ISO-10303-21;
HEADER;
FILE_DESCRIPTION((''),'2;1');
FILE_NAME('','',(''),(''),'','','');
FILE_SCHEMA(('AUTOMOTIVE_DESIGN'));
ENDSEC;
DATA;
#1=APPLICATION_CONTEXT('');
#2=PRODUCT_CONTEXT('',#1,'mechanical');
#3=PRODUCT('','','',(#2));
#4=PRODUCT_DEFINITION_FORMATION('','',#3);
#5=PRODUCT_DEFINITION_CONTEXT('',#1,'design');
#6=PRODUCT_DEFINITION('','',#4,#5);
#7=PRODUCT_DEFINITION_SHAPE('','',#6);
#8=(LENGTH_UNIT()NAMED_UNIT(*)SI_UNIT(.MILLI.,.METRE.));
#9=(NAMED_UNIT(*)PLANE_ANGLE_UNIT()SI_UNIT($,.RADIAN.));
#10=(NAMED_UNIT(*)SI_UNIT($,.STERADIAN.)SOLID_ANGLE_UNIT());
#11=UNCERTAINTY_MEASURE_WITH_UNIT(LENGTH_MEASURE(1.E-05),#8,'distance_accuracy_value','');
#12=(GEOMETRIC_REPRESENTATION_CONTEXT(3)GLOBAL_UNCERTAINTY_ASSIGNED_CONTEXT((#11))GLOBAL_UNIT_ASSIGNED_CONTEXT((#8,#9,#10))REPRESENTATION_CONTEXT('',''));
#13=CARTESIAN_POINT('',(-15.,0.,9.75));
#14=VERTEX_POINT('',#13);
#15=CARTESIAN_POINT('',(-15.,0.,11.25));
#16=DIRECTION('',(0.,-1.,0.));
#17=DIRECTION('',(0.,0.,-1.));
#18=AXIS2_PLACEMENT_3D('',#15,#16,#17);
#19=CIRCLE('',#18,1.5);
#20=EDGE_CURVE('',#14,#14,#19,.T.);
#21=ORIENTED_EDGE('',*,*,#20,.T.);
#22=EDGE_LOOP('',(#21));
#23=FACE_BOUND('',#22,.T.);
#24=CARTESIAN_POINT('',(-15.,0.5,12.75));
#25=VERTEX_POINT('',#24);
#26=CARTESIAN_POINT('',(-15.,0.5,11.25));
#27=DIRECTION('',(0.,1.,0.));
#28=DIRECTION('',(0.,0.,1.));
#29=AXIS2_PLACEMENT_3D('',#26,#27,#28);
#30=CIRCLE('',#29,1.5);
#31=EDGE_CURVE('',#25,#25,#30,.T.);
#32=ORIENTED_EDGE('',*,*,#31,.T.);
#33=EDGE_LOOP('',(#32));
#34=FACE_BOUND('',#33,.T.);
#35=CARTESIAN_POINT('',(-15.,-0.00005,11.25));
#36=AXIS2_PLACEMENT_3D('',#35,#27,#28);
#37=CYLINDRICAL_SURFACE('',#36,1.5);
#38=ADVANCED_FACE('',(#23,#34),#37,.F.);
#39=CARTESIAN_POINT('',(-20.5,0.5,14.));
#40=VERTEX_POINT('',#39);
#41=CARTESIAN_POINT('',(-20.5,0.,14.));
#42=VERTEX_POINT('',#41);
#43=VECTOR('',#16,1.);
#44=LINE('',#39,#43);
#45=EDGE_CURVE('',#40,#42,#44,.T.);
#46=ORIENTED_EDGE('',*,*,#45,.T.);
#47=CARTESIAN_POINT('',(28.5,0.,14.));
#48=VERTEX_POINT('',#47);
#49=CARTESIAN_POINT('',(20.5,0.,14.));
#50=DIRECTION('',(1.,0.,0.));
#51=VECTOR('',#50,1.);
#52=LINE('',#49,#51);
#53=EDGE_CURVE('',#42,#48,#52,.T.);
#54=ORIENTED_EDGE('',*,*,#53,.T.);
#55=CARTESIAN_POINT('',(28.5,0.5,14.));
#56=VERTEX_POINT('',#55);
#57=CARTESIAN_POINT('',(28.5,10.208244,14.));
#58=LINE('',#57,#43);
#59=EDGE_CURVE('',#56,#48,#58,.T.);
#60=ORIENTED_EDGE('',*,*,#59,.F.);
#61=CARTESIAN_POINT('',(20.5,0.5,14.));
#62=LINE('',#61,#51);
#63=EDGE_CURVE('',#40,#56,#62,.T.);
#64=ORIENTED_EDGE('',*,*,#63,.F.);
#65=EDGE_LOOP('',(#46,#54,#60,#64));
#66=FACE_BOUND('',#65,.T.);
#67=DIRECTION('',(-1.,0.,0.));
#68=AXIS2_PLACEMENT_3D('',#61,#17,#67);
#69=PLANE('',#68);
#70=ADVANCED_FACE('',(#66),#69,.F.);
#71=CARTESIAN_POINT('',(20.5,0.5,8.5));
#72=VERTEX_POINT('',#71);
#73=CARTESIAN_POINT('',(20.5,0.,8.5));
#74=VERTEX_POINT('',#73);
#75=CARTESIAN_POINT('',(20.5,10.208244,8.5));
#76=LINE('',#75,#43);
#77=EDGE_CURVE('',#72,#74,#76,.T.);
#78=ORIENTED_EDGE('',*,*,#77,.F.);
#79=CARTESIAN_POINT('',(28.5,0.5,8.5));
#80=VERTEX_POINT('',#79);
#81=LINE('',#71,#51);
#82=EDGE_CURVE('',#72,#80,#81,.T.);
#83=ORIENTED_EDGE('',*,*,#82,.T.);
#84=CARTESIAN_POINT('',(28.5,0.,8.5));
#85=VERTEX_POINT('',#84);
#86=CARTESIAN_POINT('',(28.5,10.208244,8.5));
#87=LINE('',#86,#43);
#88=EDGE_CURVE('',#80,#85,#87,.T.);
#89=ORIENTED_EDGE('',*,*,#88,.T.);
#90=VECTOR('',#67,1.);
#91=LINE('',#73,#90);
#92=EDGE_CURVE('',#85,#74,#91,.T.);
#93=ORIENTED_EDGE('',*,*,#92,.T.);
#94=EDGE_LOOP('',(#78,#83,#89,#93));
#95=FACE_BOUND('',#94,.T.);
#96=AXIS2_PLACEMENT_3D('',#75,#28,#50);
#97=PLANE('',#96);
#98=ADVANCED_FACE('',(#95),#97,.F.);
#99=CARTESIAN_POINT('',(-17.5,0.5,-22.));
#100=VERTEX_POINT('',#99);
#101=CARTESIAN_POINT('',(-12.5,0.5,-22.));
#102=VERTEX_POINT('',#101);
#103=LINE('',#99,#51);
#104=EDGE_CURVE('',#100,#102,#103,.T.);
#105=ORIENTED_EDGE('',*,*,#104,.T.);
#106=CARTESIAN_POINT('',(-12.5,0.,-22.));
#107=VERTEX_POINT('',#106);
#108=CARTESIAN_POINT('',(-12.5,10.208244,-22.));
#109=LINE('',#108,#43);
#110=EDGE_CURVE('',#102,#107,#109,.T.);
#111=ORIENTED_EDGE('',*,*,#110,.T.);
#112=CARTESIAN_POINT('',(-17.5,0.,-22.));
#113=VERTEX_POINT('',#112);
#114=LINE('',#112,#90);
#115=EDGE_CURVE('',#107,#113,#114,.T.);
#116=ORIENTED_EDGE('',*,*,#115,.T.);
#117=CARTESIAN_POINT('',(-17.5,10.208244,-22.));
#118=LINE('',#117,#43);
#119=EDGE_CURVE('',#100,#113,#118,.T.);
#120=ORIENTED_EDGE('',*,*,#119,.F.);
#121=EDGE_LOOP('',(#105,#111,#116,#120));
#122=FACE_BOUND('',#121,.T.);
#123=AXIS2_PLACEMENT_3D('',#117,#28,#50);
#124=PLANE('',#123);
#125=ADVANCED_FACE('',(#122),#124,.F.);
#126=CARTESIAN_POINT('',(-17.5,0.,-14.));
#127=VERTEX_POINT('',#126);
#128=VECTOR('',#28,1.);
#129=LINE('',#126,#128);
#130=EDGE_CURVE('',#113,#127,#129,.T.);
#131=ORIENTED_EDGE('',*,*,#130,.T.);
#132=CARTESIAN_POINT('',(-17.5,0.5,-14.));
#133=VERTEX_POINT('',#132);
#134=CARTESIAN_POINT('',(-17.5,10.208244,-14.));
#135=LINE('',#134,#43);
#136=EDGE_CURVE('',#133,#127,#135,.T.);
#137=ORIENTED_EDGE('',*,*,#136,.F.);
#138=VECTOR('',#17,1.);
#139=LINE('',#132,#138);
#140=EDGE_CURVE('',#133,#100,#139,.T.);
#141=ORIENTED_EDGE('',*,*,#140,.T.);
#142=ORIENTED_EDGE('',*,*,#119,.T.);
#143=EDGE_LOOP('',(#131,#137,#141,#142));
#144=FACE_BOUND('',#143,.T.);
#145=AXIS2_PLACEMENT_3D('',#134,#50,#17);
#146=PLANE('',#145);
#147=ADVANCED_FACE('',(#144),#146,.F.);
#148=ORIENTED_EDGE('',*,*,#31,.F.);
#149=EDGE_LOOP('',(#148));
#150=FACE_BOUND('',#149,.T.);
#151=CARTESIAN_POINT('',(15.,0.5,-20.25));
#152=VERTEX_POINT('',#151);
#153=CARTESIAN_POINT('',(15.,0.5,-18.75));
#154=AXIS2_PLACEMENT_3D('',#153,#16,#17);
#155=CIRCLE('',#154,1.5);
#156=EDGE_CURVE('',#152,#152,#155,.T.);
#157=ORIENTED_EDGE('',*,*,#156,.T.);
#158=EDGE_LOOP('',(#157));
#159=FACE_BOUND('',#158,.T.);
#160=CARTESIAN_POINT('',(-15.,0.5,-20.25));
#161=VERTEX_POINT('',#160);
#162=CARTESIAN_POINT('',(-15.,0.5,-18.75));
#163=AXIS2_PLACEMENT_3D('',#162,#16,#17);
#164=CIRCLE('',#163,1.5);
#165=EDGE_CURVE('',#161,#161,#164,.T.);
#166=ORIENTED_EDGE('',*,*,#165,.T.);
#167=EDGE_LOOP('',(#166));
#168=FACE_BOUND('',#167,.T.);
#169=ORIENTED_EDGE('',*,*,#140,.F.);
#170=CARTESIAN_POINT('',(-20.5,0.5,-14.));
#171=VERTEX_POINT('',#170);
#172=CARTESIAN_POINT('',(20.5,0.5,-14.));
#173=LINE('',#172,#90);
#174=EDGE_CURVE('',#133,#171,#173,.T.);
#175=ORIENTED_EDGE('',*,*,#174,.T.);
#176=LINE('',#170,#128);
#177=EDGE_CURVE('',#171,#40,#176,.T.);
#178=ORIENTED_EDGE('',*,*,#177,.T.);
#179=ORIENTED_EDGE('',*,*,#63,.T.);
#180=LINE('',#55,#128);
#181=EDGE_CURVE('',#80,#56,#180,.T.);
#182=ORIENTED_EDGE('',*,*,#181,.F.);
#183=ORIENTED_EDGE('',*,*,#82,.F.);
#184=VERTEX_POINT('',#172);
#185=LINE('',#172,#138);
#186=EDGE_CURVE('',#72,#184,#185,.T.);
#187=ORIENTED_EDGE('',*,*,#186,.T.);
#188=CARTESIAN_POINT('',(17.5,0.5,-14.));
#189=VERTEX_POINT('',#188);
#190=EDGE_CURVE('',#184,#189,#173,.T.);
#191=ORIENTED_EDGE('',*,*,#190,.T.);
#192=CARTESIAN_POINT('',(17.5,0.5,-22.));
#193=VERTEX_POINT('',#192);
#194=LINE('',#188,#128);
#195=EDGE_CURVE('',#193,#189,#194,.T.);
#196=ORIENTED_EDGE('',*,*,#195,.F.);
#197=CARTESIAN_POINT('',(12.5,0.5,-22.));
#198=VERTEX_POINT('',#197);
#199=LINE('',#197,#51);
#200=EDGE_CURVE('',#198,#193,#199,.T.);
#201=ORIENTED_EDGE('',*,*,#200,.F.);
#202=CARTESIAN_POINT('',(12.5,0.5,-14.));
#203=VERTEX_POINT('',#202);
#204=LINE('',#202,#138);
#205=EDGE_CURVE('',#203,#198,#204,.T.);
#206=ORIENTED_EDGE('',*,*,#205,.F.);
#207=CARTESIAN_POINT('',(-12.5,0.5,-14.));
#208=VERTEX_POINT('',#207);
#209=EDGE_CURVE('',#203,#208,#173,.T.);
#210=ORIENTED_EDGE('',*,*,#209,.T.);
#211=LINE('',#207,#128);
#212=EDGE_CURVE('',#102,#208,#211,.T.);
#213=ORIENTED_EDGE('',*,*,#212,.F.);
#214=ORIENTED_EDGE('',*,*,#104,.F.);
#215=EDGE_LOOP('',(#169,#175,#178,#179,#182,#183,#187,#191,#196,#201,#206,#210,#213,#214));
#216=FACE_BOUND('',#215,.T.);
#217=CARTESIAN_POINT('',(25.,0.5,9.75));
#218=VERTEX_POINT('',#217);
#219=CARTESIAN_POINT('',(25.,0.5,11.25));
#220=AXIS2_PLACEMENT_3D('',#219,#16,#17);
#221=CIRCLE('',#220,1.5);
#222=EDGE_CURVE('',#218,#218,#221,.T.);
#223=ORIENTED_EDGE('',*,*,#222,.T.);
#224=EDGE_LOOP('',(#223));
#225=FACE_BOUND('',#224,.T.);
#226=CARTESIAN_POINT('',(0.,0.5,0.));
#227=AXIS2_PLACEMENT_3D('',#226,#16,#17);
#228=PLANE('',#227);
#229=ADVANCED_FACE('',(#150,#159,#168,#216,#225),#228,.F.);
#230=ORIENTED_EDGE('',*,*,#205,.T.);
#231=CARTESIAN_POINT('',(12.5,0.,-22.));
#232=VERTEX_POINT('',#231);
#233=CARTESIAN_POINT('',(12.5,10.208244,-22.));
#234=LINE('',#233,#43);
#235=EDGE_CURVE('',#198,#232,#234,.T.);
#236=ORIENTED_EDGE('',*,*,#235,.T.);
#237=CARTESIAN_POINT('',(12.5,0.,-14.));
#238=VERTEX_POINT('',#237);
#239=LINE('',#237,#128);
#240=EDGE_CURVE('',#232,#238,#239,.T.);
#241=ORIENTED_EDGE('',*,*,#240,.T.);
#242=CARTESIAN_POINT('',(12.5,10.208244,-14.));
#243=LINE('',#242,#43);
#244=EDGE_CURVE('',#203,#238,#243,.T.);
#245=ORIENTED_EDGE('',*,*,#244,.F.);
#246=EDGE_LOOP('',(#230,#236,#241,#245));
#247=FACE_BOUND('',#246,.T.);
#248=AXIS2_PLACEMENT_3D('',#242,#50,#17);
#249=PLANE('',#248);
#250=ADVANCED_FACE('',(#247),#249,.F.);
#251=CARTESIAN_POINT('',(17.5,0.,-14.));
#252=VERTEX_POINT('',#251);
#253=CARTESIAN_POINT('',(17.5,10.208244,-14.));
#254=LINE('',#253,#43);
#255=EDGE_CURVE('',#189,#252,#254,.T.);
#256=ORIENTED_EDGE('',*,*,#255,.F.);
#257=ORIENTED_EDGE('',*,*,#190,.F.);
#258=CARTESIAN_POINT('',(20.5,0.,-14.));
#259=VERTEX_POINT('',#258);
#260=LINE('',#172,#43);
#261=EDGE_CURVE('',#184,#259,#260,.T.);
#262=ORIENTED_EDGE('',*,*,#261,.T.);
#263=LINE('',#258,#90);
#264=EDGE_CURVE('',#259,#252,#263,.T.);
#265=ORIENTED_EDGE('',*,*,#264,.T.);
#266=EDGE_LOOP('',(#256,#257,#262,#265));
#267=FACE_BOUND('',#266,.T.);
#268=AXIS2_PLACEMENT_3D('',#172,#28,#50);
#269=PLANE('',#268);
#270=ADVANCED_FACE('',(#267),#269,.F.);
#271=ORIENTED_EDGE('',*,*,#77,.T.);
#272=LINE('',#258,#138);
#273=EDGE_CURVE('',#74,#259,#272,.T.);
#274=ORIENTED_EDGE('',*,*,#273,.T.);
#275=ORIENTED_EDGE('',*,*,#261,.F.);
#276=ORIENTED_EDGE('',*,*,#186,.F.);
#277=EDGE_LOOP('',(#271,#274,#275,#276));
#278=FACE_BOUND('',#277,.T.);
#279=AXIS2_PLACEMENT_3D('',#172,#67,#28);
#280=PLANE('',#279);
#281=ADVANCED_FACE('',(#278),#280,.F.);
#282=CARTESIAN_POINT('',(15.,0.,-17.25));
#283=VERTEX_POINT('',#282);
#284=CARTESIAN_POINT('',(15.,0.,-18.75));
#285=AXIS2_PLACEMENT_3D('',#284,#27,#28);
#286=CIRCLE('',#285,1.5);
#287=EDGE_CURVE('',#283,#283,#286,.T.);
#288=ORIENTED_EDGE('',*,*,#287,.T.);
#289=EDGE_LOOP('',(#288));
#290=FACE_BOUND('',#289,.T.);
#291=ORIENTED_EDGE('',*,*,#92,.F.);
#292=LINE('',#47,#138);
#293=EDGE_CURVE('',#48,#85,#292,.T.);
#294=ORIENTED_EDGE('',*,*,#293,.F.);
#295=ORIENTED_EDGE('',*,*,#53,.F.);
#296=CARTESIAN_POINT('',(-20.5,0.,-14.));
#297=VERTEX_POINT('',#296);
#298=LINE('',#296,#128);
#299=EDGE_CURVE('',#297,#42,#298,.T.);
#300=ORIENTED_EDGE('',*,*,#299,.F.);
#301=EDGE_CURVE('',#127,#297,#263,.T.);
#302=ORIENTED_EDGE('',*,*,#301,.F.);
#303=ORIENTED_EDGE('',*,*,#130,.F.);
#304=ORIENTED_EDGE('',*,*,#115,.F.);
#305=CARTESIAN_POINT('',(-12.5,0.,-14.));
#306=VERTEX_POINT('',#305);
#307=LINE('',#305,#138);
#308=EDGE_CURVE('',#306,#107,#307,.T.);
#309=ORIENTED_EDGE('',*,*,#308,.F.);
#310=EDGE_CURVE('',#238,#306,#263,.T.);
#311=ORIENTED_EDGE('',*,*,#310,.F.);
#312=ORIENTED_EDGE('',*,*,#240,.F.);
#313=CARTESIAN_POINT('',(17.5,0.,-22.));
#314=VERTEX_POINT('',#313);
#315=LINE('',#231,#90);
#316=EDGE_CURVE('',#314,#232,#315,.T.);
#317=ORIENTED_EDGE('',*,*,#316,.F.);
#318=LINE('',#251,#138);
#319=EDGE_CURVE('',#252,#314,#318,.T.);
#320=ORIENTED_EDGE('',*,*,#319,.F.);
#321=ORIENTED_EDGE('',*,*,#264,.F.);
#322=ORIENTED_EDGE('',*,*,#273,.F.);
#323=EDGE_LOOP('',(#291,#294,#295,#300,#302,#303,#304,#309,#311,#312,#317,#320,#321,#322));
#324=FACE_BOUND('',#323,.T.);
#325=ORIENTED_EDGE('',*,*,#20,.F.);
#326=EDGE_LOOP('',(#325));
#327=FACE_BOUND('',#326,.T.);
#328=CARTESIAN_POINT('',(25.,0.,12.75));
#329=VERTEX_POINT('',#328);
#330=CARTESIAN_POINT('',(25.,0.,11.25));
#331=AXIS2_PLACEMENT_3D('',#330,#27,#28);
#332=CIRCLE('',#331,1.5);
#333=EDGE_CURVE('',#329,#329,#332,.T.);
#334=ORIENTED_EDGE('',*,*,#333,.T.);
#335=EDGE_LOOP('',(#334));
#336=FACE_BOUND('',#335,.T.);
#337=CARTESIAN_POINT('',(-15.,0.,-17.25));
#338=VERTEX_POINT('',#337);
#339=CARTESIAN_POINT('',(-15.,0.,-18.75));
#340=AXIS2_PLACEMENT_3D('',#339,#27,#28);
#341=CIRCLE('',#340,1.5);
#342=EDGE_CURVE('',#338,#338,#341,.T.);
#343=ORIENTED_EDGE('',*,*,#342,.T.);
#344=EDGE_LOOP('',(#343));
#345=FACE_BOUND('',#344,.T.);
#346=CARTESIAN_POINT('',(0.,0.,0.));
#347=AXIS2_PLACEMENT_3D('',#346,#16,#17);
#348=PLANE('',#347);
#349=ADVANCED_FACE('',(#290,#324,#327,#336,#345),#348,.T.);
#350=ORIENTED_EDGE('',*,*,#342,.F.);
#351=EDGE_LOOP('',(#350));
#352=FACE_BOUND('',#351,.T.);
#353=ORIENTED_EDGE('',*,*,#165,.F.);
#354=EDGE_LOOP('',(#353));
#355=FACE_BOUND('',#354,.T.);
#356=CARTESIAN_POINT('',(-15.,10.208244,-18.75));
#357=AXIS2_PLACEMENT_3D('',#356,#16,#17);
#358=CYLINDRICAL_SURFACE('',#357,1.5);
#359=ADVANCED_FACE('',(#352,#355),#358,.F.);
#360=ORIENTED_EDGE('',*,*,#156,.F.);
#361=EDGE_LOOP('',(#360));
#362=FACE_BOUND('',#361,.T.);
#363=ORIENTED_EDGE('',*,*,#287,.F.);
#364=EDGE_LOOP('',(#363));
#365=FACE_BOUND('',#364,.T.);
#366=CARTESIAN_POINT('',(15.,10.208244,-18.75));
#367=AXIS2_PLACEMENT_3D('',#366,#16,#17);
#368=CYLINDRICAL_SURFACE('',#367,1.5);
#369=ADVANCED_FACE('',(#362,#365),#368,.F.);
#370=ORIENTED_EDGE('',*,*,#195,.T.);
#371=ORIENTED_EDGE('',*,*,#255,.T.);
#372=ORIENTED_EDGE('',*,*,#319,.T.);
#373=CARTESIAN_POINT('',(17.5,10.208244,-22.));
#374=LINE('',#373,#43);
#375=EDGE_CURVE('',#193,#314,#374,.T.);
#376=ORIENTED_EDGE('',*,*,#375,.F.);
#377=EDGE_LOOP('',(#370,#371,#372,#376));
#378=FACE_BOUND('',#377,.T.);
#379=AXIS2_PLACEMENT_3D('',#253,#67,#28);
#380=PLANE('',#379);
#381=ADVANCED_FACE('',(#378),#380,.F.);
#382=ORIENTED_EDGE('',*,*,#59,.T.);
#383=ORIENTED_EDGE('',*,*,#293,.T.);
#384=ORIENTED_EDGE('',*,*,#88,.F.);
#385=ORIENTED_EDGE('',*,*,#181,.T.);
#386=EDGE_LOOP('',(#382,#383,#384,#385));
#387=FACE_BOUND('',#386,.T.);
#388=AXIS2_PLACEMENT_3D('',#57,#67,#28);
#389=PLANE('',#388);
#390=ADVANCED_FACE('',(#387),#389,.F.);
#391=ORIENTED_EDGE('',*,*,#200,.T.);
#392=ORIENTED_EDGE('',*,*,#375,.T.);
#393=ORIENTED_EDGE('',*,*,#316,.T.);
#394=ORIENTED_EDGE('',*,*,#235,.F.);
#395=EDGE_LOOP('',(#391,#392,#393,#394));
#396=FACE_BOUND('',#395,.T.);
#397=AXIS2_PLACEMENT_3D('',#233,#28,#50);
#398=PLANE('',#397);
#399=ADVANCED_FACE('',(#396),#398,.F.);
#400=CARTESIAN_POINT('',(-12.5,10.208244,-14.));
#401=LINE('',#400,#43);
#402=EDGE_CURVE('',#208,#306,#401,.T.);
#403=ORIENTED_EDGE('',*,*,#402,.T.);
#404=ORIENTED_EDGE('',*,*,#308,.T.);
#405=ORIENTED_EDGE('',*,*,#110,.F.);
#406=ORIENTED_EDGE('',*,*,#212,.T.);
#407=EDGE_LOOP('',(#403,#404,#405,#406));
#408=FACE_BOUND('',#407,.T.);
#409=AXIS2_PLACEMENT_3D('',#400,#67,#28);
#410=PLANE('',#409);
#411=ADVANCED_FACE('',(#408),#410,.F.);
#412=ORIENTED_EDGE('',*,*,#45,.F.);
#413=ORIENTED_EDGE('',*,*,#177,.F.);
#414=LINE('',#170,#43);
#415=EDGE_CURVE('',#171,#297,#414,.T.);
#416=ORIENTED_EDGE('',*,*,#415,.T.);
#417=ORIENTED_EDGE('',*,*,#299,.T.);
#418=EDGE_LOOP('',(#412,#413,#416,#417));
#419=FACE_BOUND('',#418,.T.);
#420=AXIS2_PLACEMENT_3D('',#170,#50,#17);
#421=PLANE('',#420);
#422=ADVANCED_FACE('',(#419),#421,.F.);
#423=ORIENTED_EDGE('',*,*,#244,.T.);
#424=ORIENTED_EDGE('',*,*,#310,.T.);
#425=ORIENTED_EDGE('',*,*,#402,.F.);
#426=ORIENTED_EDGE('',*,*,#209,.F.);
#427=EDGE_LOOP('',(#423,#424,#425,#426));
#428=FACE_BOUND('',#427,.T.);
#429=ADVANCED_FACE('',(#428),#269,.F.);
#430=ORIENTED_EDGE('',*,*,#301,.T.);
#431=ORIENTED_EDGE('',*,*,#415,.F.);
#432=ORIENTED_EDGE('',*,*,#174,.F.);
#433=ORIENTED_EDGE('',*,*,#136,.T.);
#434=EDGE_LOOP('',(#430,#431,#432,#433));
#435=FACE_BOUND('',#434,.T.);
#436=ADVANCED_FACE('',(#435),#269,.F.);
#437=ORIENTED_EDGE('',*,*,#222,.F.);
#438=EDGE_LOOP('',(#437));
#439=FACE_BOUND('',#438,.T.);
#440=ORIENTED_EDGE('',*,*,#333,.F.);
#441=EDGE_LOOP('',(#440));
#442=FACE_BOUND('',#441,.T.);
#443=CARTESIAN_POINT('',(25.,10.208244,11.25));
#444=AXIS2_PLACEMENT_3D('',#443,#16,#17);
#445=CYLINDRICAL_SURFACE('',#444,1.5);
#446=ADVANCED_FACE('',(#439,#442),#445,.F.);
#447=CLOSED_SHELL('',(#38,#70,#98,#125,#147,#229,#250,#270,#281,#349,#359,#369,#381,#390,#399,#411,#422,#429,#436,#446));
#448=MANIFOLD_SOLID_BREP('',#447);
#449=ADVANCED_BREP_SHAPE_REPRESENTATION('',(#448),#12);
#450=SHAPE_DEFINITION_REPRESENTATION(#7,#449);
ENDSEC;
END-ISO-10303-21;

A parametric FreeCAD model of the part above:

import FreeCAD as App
import Part
import Sketcher


def add_polygon(sketch, points):
    """Adds a closed chain of lines whose ends are joined by coincident constraints."""
    first, n = sketch.GeometryCount, len(points)
    for a, b in zip(points, points[1:] + points[:1]):
        sketch.addGeometry(Part.LineSegment(App.Vector(*a, 0), App.Vector(*b, 0)), False)
    for i in range(n):
        sketch.addConstraint(Sketcher.Constraint("Coincident", first + i, 2, first + (i + 1) % n, 1))

doc = App.newDocument("Part")
body = doc.addObject("PartDesign::Body", "Body")

# Sketch on XZ plane
sketch1 = doc.addObject("Sketcher::SketchObject", "Sketch")
body.addObject(sketch1)
sketch1.AttachmentSupport = (doc.XZ_Plane, [""])
sketch1.MapMode = "FlatFace"
add_polygon(sketch1, [(-20, -14), (-20, 14), (20, 14), (20, -14)])  # lines 0-3
sketch1.addConstraint(Sketcher.Constraint("Vertical", 0))
sketch1.addConstraint(Sketcher.Constraint("Horizontal", 1))
sketch1.addConstraint(Sketcher.Constraint("Vertical", 2))
sketch1.addConstraint(Sketcher.Constraint("Horizontal", 3))
sketch1.addConstraint(Sketcher.Constraint("Symmetric", 0, 2, 2, 2, -1, 1))
sketch1.addConstraint(Sketcher.Constraint("DistanceX", 1, 1, 1, 2, 41.0))
sketch1.addConstraint(Sketcher.Constraint("DistanceY", 0, 1, 0, 2, 28.0))
pad1 = doc.addObject("PartDesign::Pad", "Pad")
body.addObject(pad1)
pad1.Profile = sketch1
pad1.Length = 0.5
pad1.Reversed = True

# Sketch on XZ plane
sketch2 = doc.addObject("Sketcher::SketchObject", "Sketch001")
body.addObject(sketch2)
sketch2.AttachmentSupport = (doc.XZ_Plane, [""])
sketch2.MapMode = "FlatFace"
sketch2.addGeometry(Part.Circle(App.Vector(-15, 11.2, 0), App.Vector(0, 0, 1), 1.5), False)  # 0
add_polygon(sketch2, [(-17.5, -22), (-17.5, -14), (-12.5, -14), (-12.5, -22)])  # lines 1-4
sketch2.addGeometry(Part.Circle(App.Vector(-15, -18.8, 0), App.Vector(0, 0, 1), 1.5), False)  # 5
add_polygon(sketch2, [(12.5, -22), (12.5, -14), (17.5, -14), (17.5, -22)])  # lines 6-9
sketch2.addGeometry(Part.Circle(App.Vector(15, -18.8, 0), App.Vector(0, 0, 1), 1.5), False)  # 10
add_polygon(sketch2, [(20.5, 8.5), (20.5, 14), (28.5, 14), (28.5, 8.5)])  # lines 11-14
sketch2.addGeometry(Part.Circle(App.Vector(25, 11.2, 0), App.Vector(0, 0, 1), 1.5), False)  # 15
sketch2.addConstraint(Sketcher.Constraint("Vertical", 1))
sketch2.addConstraint(Sketcher.Constraint("Horizontal", 2))
sketch2.addConstraint(Sketcher.Constraint("Vertical", 3))
sketch2.addConstraint(Sketcher.Constraint("Horizontal", 4))
sketch2.addConstraint(Sketcher.Constraint("Vertical", 6))
sketch2.addConstraint(Sketcher.Constraint("Horizontal", 7))
sketch2.addConstraint(Sketcher.Constraint("Vertical", 8))
sketch2.addConstraint(Sketcher.Constraint("Horizontal", 9))
sketch2.addConstraint(Sketcher.Constraint("Vertical", 11))
sketch2.addConstraint(Sketcher.Constraint("Horizontal", 12))
sketch2.addConstraint(Sketcher.Constraint("Vertical", 13))
sketch2.addConstraint(Sketcher.Constraint("Horizontal", 14))
sketch2.addConstraint(Sketcher.Constraint("Equal", 0, 5))
sketch2.addConstraint(Sketcher.Constraint("Equal", 5, 10))
sketch2.addConstraint(Sketcher.Constraint("Equal", 10, 15))
sketch2.addConstraint(Sketcher.Constraint("Symmetric", 5, 3, 10, 3, -2))
sketch2.addConstraint(Sketcher.Constraint("Symmetric", 2, 2, 6, 2, -2))
sketch2.addConstraint(Sketcher.Constraint("Symmetric", 4, 2, 8, 2, -2))
sketch2.addConstraint(Sketcher.Constraint("Horizontal", 0, 3, 15, 3))
sketch2.addConstraint(Sketcher.Constraint("Vertical", 0, 3, 5, 3))
sketch2.addConstraint(Sketcher.Constraint("Equal", 14, 1))
sketch2.addConstraint(Sketcher.Constraint("Diameter", 0, 3.0))
sketch2.addConstraint(Sketcher.Constraint("DistanceX", 2, 1, 2, 2, 5.0))
sketch2.addConstraint(Sketcher.Constraint("DistanceX", 12, 1, 12, 2, 8.0))
sketch2.addConstraint(Sketcher.Constraint("DistanceY", 11, 1, 11, 2, 5.5))
sketch2.addConstraint(Sketcher.Constraint("DistanceX", 0, 3, -1, 1, 15.0))
sketch2.addConstraint(Sketcher.Constraint("DistanceX", -1, 1, 15, 3, 25.0))
sketch2.addConstraint(Sketcher.Constraint("DistanceY", 1, 2, -1, 1, 14.0))
sketch2.addConstraint(Sketcher.Constraint("DistanceY", -1, 1, 11, 2, 14.0))
sketch2.addConstraint(Sketcher.Constraint("DistanceY", 5, 3, 0, 3, 30.0))
sketch2.addConstraint(Sketcher.Constraint("DistanceX", 2, 2, 6, 2, 25.0))
sketch2.addConstraint(Sketcher.Constraint("DistanceX", 7, 2, 11, 2, 3.0))
sketch2.addConstraint(Sketcher.Constraint("DistanceY", -1, 1, 0, 3, 11.25))
pad2 = doc.addObject("PartDesign::Pad", "Pad001")
body.addObject(pad2)
pad2.Profile = sketch2
pad2.Length = 0.5
pad2.Reversed = True

# Sketch on XZ plane
sketch3 = doc.addObject("Sketcher::SketchObject", "Sketch002")
body.addObject(sketch3)
sketch3.AttachmentSupport = (doc.XZ_Plane, [""])
sketch3.MapMode = "FlatFace"
sketch3.AttachmentOffset = App.Placement(App.Vector(0, 0, -0.5), App.Rotation())
sketch3.addGeometry(Part.Circle(App.Vector(-15, 11.2, 0), App.Vector(0, 0, 1), 1.5), False)
sketch3.addConstraint(Sketcher.Constraint("Diameter", 0, 3.0))
sketch3.addConstraint(Sketcher.Constraint("DistanceX", 0, 3, -1, 1, 15.0))
sketch3.addConstraint(Sketcher.Constraint("DistanceY", -1, 1, 0, 3, 11.25))
pocket1 = doc.addObject("PartDesign::Pocket", "Pocket")
body.addObject(pocket1)
pocket1.Profile = sketch3
pocket1.Type = "ThroughAll"
pocket1.Reversed = True

doc.recompute()
